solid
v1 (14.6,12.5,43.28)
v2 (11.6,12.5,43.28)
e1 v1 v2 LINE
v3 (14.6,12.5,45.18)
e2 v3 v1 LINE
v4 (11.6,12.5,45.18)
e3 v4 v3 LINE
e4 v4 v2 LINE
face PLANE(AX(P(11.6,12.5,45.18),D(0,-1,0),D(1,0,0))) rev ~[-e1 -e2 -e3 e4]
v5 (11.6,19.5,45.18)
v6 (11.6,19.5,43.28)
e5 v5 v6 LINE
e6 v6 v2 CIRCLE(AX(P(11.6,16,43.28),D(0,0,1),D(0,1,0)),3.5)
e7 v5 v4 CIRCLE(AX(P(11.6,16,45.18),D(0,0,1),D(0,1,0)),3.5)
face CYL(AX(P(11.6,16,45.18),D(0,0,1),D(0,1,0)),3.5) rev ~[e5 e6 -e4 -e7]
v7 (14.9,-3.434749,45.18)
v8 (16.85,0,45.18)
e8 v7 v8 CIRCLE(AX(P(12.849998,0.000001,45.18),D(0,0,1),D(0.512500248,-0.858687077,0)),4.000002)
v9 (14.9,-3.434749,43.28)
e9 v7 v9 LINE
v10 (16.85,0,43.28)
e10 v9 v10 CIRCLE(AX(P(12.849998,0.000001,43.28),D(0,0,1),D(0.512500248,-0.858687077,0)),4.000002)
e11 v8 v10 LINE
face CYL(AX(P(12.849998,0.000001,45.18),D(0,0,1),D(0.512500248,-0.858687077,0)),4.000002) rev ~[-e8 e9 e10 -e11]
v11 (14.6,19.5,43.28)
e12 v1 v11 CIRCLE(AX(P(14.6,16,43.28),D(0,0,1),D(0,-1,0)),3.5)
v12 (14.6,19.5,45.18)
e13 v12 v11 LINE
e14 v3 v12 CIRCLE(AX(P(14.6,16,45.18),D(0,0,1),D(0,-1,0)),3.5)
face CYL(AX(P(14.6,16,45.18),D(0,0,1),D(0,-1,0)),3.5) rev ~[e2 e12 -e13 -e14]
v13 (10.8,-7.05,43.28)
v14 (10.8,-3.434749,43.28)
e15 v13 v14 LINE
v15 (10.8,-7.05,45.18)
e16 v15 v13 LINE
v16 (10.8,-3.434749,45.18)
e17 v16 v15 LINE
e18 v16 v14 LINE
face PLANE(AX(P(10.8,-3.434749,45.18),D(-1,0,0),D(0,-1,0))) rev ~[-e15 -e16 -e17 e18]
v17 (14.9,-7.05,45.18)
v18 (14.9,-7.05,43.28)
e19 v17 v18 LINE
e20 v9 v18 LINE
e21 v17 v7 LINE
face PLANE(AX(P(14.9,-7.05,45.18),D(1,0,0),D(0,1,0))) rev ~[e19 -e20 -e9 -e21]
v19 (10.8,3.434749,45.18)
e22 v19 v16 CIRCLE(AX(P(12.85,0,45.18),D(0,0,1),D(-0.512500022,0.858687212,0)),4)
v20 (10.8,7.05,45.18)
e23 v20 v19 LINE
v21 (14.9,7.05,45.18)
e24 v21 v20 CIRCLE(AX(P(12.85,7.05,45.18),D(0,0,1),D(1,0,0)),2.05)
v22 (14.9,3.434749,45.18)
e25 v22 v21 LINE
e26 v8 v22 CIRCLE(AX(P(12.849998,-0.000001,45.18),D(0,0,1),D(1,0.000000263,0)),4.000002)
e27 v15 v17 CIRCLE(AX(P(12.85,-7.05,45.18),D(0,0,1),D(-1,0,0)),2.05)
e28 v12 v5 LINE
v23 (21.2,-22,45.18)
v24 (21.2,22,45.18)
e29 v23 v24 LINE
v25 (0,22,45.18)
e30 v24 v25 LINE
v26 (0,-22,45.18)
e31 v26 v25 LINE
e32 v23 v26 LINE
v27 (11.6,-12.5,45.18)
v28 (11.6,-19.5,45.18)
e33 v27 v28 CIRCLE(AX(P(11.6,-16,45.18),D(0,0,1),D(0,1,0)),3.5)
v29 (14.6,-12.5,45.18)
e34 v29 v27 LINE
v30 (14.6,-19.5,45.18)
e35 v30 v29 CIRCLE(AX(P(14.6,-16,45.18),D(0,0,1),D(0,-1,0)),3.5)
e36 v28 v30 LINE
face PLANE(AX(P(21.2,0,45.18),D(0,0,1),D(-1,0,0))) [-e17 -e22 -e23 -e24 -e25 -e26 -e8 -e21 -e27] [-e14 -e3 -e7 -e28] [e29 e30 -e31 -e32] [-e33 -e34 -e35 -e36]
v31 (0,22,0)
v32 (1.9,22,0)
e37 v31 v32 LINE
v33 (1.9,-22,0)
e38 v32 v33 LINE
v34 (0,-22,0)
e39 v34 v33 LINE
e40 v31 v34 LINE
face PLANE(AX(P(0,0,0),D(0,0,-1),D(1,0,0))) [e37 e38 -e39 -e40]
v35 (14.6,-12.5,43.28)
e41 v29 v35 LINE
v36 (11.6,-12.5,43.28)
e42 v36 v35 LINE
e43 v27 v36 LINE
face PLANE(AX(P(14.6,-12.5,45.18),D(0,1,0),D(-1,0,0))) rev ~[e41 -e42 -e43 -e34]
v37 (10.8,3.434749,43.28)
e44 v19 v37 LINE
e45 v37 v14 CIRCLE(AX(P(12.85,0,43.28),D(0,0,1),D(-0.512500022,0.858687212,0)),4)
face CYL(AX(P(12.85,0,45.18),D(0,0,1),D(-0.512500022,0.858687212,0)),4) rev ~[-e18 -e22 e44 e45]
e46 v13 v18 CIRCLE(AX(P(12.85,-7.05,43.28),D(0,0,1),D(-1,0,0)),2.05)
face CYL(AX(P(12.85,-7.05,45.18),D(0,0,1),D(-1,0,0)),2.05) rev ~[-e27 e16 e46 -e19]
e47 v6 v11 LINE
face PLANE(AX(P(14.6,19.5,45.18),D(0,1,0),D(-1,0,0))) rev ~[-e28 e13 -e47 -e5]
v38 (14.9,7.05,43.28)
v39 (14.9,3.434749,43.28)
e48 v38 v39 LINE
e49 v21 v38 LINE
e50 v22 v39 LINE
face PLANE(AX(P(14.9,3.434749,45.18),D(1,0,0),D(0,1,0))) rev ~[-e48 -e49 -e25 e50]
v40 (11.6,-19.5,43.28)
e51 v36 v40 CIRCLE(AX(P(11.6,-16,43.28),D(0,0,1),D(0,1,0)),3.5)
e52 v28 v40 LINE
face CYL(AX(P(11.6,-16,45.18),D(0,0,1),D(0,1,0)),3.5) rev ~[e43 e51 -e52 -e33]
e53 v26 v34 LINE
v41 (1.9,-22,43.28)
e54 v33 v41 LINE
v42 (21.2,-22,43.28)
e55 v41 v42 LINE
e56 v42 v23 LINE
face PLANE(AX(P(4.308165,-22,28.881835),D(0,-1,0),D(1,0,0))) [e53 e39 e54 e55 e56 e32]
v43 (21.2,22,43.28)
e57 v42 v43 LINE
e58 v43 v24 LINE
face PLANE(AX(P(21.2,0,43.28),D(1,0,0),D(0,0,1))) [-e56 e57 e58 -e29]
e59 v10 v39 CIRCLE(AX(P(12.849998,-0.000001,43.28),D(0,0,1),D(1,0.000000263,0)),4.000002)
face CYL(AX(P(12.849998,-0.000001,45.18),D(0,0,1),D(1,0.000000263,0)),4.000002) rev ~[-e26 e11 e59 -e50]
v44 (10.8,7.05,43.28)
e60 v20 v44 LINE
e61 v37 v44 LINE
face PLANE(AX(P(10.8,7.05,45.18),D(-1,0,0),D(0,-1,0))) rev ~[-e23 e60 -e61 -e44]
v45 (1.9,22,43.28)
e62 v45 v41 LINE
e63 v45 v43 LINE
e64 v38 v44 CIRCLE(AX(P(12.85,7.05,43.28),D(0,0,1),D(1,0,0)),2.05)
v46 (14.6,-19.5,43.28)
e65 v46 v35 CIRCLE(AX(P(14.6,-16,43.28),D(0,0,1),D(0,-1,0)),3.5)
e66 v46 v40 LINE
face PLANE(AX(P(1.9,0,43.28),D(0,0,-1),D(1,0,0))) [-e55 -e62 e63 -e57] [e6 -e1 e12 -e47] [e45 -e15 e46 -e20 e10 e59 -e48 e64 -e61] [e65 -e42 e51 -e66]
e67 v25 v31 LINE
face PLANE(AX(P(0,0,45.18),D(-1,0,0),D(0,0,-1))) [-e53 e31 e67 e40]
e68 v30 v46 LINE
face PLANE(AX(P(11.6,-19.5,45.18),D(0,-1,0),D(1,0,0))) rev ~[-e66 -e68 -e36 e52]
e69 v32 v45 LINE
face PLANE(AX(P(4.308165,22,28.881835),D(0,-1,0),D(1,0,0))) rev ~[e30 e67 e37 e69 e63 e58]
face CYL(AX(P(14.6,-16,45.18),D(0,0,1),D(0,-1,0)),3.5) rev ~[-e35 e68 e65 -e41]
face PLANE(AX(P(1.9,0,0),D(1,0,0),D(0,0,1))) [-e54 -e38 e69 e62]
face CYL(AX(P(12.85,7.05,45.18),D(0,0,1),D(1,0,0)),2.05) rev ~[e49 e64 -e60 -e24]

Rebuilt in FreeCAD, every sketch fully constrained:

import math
import FreeCAD as App
import Part
import Sketcher

V = App.Vector

doc = App.newDocument("Part")
body = doc.addObject("PartDesign::Body", "Body")

sketch1 = body.newObject("Sketcher::SketchObject", "Sketch")
sketch1.AttachmentSupport = (doc.getObject("XZ_Plane"), [""])
sketch1.MapMode = "FlatFace"
sketch1.addGeometry(Part.LineSegment(V(0, 45.18, 0), V(0, 0, 0)), False)
sketch1.addGeometry(Part.LineSegment(V(0, 0, 0), V(1.9, 0, 0)), False)
sketch1.addGeometry(Part.LineSegment(V(1.9, 0, 0), V(1.9, 43.28, 0)), False)
sketch1.addGeometry(Part.LineSegment(V(1.9, 43.28, 0), V(21.2, 43.28, 0)), False)
sketch1.addGeometry(Part.LineSegment(V(21.2, 43.28, 0), V(21.2, 45.18, 0)), False)
sketch1.addGeometry(Part.LineSegment(V(21.2, 45.18, 0), V(0, 45.18, 0)), False)
sketch1.addConstraint(Sketcher.Constraint("Coincident", 0, 2, 1, 1))
sketch1.addConstraint(Sketcher.Constraint("Coincident", 1, 2, 2, 1))
sketch1.addConstraint(Sketcher.Constraint("Coincident", 2, 2, 3, 1))
sketch1.addConstraint(Sketcher.Constraint("Coincident", 3, 2, 4, 1))
sketch1.addConstraint(Sketcher.Constraint("Coincident", 4, 2, 5, 1))
sketch1.addConstraint(Sketcher.Constraint("Coincident", 5, 2, 0, 1))
sketch1.addConstraint(Sketcher.Constraint("Vertical", 0))
sketch1.addConstraint(Sketcher.Constraint("Horizontal", 1))
sketch1.addConstraint(Sketcher.Constraint("Vertical", 2))
sketch1.addConstraint(Sketcher.Constraint("Horizontal", 3))
sketch1.addConstraint(Sketcher.Constraint("Vertical", 4))
sketch1.addConstraint(Sketcher.Constraint("Horizontal", 5))
sketch1.addConstraint(Sketcher.Constraint("Coincident", 0, 2, -1, 1))
sketch1.addConstraint(Sketcher.Constraint("Equal", 1, 4))
sketch1.addConstraint(Sketcher.Constraint("DistanceX", 1, 1, 1, 2, 1.9))
sketch1.addConstraint(Sketcher.Constraint("DistanceX", 3, 1, 3, 2, 19.3))
sketch1.addConstraint(Sketcher.Constraint("DistanceY", 0, 2, 0, 1, 45.18))
pad1 = body.newObject("PartDesign::Pad", "Pad")
pad1.Profile = sketch1
pad1.Length = 44
pad1.Midplane = True

sketch2 = body.newObject("Sketcher::SketchObject", "Sketch001")
sketch2.AttachmentSupport = (doc.getObject("XY_Plane"), [""])
sketch2.MapMode = "FlatFace"
sketch2.AttachmentOffset = App.Placement(V(0, 0, 45.18), App.Rotation())
sketch2.addGeometry(Part.ArcOfCircle(Part.Circle(V(11.6, -16, 0), V(0, 0, 1), 3.5), math.radians(90), math.radians(270)), False)
sketch2.addGeometry(Part.LineSegment(V(11.6, -19.5, 0), V(14.6, -19.5, 0)), False)
sketch2.addGeometry(Part.ArcOfCircle(Part.Circle(V(14.6, -16, 0), V(0, 0, 1), 3.5), math.radians(-90), math.radians(90)), False)
sketch2.addGeometry(Part.LineSegment(V(14.6, -12.5, 0), V(11.6, -12.5, 0)), False)
sketch2.addGeometry(Part.ArcOfCircle(Part.Circle(V(11.6, 16, 0), V(0, 0, 1), 3.5), math.radians(90), math.radians(270)), False)
sketch2.addGeometry(Part.LineSegment(V(11.6, 12.5, 0), V(14.6, 12.5, 0)), False)
sketch2.addGeometry(Part.ArcOfCircle(Part.Circle(V(14.6, 16, 0), V(0, 0, 1), 3.5), math.radians(-90), math.radians(90)), False)
sketch2.addGeometry(Part.LineSegment(V(14.6, 19.5, 0), V(11.6, 19.5, 0)), False)
sketch2.addGeometry(Part.ArcOfCircle(Part.Circle(V(12.85, 7.05, 0), V(0, 0, 1), 2.05), math.radians(0), math.radians(180)), False)
sketch2.addGeometry(Part.LineSegment(V(10.8, 7.05, 0), V(10.8, 3.434749, 0)), False)
sketch2.addGeometry(Part.ArcOfCircle(Part.Circle(V(12.85, 0, 0), V(0, 0, 1), 4), math.radians(120.830499), math.radians(239.169501)), False)
sketch2.addGeometry(Part.LineSegment(V(10.8, -3.434749, 0), V(10.8, -7.05, 0)), False)
sketch2.addGeometry(Part.ArcOfCircle(Part.Circle(V(12.85, -7.05, 0), V(0, 0, 1), 2.05), math.radians(180), math.radians(360)), False)
sketch2.addGeometry(Part.LineSegment(V(14.9, -7.05, 0), V(14.9, -3.434749, 0)), False)
sketch2.addGeometry(Part.ArcOfCircle(Part.Circle(V(12.849998, 0.000001, 0), V(0, 0, 1), 4.000002), math.radians(-59.169486), math.radians(-0.000015)), False)
sketch2.addGeometry(Part.ArcOfCircle(Part.Circle(V(12.849998, -0.000001, 0), V(0, 0, 1), 4.000002), math.radians(0.000015), math.radians(59.169486)), False)
sketch2.addGeometry(Part.LineSegment(V(14.9, 3.434749, 0), V(14.9, 7.05, 0)), False)
sketch2.addConstraint(Sketcher.Constraint("Tangent", 0, 2, 1, 1))
sketch2.addConstraint(Sketcher.Constraint("Tangent", 1, 2, 2, 1))
sketch2.addConstraint(Sketcher.Constraint("Tangent", 2, 2, 3, 1))
sketch2.addConstraint(Sketcher.Constraint("Tangent", 3, 2, 0, 1))
sketch2.addConstraint(Sketcher.Constraint("Tangent", 4, 2, 5, 1))
sketch2.addConstraint(Sketcher.Constraint("Tangent", 5, 2, 6, 1))
sketch2.addConstraint(Sketcher.Constraint("Tangent", 6, 2, 7, 1))
sketch2.addConstraint(Sketcher.Constraint("Tangent", 7, 2, 4, 1))
sketch2.addConstraint(Sketcher.Constraint("Tangent", 8, 2, 9, 1))
sketch2.addConstraint(Sketcher.Constraint("Coincident", 9, 2, 10, 1))
sketch2.addConstraint(Sketcher.Constraint("Coincident", 10, 2, 11, 1))
sketch2.addConstraint(Sketcher.Constraint("Tangent", 11, 2, 12, 1))
sketch2.addConstraint(Sketcher.Constraint("Tangent", 12, 2, 13, 1))
sketch2.addConstraint(Sketcher.Constraint("Coincident", 13, 2, 14, 1))
sketch2.addConstraint(Sketcher.Constraint("Tangent", 14, 2, 15, 1))
sketch2.addConstraint(Sketcher.Constraint("Coincident", 15, 2, 16, 1))
sketch2.addConstraint(Sketcher.Constraint("Tangent", 16, 2, 8, 1))
sketch2.addConstraint(Sketcher.Constraint("Horizontal", 1))
sketch2.addConstraint(Sketcher.Constraint("Horizontal", 3))
sketch2.addConstraint(Sketcher.Constraint("Horizontal", 5))
sketch2.addConstraint(Sketcher.Constraint("Horizontal", 7))
sketch2.addConstraint(Sketcher.Constraint("Vertical", 9))
sketch2.addConstraint(Sketcher.Constraint("Vertical", 11))
sketch2.addConstraint(Sketcher.Constraint("Vertical", 13))
sketch2.addConstraint(Sketcher.Constraint("Vertical", 16))
sketch2.addConstraint(Sketcher.Constraint("Coincident", 14, 3, 10, 3))
sketch2.addConstraint(Sketcher.Constraint("Equal", 2, 4))
sketch2.addConstraint(Sketcher.Constraint("Equal", 8, 12))
sketch2.addConstraint(Sketcher.Constraint("Equal", 10, 14))
sketch2.addConstraint(Sketcher.Constraint("Equal", 14, 15))
sketch2.addConstraint(Sketcher.Constraint("Symmetric", 0, 3, 4, 3, -1))
sketch2.addConstraint(Sketcher.Constraint("Symmetric", 8, 3, 12, 3, -1))
sketch2.addConstraint(Sketcher.Constraint("PointOnObject", 10, 3, -1))
sketch2.addConstraint(Sketcher.Constraint("PointOnObject", 14, 2, -1))
sketch2.addConstraint(Sketcher.Constraint("Horizontal", 10, 2, 13, 2))
sketch2.addConstraint(Sketcher.Constraint("Vertical", 2, 3, 6, 3))
sketch2.addConstraint(Sketcher.Constraint("Radius", 10, 4.0))
sketch2.addConstraint(Sketcher.Constraint("Radius", 0, 3.5))
sketch2.addConstraint(Sketcher.Constraint("DistanceX", 1, 1, 1, 2, 3.0))
sketch2.addConstraint(Sketcher.Constraint("Radius", 8, 2.05))
sketch2.addConstraint(Sketcher.Constraint("DistanceY", 0, 3, -1, 1, 16.0))
sketch2.addConstraint(Sketcher.Constraint("DistanceX", -1, 1, 0, 3, 11.6))
sketch2.addConstraint(Sketcher.Constraint("DistanceX", -1, 1, 8, 2, 10.8))
sketch2.addConstraint(Sketcher.Constraint("DistanceY", 12, 3, 8, 3, 14.1))
pocket1 = body.newObject("PartDesign::Pocket", "Pocket")
pocket1.Profile = sketch2
pocket1.Type = "ThroughAll"

doc.recompute()
